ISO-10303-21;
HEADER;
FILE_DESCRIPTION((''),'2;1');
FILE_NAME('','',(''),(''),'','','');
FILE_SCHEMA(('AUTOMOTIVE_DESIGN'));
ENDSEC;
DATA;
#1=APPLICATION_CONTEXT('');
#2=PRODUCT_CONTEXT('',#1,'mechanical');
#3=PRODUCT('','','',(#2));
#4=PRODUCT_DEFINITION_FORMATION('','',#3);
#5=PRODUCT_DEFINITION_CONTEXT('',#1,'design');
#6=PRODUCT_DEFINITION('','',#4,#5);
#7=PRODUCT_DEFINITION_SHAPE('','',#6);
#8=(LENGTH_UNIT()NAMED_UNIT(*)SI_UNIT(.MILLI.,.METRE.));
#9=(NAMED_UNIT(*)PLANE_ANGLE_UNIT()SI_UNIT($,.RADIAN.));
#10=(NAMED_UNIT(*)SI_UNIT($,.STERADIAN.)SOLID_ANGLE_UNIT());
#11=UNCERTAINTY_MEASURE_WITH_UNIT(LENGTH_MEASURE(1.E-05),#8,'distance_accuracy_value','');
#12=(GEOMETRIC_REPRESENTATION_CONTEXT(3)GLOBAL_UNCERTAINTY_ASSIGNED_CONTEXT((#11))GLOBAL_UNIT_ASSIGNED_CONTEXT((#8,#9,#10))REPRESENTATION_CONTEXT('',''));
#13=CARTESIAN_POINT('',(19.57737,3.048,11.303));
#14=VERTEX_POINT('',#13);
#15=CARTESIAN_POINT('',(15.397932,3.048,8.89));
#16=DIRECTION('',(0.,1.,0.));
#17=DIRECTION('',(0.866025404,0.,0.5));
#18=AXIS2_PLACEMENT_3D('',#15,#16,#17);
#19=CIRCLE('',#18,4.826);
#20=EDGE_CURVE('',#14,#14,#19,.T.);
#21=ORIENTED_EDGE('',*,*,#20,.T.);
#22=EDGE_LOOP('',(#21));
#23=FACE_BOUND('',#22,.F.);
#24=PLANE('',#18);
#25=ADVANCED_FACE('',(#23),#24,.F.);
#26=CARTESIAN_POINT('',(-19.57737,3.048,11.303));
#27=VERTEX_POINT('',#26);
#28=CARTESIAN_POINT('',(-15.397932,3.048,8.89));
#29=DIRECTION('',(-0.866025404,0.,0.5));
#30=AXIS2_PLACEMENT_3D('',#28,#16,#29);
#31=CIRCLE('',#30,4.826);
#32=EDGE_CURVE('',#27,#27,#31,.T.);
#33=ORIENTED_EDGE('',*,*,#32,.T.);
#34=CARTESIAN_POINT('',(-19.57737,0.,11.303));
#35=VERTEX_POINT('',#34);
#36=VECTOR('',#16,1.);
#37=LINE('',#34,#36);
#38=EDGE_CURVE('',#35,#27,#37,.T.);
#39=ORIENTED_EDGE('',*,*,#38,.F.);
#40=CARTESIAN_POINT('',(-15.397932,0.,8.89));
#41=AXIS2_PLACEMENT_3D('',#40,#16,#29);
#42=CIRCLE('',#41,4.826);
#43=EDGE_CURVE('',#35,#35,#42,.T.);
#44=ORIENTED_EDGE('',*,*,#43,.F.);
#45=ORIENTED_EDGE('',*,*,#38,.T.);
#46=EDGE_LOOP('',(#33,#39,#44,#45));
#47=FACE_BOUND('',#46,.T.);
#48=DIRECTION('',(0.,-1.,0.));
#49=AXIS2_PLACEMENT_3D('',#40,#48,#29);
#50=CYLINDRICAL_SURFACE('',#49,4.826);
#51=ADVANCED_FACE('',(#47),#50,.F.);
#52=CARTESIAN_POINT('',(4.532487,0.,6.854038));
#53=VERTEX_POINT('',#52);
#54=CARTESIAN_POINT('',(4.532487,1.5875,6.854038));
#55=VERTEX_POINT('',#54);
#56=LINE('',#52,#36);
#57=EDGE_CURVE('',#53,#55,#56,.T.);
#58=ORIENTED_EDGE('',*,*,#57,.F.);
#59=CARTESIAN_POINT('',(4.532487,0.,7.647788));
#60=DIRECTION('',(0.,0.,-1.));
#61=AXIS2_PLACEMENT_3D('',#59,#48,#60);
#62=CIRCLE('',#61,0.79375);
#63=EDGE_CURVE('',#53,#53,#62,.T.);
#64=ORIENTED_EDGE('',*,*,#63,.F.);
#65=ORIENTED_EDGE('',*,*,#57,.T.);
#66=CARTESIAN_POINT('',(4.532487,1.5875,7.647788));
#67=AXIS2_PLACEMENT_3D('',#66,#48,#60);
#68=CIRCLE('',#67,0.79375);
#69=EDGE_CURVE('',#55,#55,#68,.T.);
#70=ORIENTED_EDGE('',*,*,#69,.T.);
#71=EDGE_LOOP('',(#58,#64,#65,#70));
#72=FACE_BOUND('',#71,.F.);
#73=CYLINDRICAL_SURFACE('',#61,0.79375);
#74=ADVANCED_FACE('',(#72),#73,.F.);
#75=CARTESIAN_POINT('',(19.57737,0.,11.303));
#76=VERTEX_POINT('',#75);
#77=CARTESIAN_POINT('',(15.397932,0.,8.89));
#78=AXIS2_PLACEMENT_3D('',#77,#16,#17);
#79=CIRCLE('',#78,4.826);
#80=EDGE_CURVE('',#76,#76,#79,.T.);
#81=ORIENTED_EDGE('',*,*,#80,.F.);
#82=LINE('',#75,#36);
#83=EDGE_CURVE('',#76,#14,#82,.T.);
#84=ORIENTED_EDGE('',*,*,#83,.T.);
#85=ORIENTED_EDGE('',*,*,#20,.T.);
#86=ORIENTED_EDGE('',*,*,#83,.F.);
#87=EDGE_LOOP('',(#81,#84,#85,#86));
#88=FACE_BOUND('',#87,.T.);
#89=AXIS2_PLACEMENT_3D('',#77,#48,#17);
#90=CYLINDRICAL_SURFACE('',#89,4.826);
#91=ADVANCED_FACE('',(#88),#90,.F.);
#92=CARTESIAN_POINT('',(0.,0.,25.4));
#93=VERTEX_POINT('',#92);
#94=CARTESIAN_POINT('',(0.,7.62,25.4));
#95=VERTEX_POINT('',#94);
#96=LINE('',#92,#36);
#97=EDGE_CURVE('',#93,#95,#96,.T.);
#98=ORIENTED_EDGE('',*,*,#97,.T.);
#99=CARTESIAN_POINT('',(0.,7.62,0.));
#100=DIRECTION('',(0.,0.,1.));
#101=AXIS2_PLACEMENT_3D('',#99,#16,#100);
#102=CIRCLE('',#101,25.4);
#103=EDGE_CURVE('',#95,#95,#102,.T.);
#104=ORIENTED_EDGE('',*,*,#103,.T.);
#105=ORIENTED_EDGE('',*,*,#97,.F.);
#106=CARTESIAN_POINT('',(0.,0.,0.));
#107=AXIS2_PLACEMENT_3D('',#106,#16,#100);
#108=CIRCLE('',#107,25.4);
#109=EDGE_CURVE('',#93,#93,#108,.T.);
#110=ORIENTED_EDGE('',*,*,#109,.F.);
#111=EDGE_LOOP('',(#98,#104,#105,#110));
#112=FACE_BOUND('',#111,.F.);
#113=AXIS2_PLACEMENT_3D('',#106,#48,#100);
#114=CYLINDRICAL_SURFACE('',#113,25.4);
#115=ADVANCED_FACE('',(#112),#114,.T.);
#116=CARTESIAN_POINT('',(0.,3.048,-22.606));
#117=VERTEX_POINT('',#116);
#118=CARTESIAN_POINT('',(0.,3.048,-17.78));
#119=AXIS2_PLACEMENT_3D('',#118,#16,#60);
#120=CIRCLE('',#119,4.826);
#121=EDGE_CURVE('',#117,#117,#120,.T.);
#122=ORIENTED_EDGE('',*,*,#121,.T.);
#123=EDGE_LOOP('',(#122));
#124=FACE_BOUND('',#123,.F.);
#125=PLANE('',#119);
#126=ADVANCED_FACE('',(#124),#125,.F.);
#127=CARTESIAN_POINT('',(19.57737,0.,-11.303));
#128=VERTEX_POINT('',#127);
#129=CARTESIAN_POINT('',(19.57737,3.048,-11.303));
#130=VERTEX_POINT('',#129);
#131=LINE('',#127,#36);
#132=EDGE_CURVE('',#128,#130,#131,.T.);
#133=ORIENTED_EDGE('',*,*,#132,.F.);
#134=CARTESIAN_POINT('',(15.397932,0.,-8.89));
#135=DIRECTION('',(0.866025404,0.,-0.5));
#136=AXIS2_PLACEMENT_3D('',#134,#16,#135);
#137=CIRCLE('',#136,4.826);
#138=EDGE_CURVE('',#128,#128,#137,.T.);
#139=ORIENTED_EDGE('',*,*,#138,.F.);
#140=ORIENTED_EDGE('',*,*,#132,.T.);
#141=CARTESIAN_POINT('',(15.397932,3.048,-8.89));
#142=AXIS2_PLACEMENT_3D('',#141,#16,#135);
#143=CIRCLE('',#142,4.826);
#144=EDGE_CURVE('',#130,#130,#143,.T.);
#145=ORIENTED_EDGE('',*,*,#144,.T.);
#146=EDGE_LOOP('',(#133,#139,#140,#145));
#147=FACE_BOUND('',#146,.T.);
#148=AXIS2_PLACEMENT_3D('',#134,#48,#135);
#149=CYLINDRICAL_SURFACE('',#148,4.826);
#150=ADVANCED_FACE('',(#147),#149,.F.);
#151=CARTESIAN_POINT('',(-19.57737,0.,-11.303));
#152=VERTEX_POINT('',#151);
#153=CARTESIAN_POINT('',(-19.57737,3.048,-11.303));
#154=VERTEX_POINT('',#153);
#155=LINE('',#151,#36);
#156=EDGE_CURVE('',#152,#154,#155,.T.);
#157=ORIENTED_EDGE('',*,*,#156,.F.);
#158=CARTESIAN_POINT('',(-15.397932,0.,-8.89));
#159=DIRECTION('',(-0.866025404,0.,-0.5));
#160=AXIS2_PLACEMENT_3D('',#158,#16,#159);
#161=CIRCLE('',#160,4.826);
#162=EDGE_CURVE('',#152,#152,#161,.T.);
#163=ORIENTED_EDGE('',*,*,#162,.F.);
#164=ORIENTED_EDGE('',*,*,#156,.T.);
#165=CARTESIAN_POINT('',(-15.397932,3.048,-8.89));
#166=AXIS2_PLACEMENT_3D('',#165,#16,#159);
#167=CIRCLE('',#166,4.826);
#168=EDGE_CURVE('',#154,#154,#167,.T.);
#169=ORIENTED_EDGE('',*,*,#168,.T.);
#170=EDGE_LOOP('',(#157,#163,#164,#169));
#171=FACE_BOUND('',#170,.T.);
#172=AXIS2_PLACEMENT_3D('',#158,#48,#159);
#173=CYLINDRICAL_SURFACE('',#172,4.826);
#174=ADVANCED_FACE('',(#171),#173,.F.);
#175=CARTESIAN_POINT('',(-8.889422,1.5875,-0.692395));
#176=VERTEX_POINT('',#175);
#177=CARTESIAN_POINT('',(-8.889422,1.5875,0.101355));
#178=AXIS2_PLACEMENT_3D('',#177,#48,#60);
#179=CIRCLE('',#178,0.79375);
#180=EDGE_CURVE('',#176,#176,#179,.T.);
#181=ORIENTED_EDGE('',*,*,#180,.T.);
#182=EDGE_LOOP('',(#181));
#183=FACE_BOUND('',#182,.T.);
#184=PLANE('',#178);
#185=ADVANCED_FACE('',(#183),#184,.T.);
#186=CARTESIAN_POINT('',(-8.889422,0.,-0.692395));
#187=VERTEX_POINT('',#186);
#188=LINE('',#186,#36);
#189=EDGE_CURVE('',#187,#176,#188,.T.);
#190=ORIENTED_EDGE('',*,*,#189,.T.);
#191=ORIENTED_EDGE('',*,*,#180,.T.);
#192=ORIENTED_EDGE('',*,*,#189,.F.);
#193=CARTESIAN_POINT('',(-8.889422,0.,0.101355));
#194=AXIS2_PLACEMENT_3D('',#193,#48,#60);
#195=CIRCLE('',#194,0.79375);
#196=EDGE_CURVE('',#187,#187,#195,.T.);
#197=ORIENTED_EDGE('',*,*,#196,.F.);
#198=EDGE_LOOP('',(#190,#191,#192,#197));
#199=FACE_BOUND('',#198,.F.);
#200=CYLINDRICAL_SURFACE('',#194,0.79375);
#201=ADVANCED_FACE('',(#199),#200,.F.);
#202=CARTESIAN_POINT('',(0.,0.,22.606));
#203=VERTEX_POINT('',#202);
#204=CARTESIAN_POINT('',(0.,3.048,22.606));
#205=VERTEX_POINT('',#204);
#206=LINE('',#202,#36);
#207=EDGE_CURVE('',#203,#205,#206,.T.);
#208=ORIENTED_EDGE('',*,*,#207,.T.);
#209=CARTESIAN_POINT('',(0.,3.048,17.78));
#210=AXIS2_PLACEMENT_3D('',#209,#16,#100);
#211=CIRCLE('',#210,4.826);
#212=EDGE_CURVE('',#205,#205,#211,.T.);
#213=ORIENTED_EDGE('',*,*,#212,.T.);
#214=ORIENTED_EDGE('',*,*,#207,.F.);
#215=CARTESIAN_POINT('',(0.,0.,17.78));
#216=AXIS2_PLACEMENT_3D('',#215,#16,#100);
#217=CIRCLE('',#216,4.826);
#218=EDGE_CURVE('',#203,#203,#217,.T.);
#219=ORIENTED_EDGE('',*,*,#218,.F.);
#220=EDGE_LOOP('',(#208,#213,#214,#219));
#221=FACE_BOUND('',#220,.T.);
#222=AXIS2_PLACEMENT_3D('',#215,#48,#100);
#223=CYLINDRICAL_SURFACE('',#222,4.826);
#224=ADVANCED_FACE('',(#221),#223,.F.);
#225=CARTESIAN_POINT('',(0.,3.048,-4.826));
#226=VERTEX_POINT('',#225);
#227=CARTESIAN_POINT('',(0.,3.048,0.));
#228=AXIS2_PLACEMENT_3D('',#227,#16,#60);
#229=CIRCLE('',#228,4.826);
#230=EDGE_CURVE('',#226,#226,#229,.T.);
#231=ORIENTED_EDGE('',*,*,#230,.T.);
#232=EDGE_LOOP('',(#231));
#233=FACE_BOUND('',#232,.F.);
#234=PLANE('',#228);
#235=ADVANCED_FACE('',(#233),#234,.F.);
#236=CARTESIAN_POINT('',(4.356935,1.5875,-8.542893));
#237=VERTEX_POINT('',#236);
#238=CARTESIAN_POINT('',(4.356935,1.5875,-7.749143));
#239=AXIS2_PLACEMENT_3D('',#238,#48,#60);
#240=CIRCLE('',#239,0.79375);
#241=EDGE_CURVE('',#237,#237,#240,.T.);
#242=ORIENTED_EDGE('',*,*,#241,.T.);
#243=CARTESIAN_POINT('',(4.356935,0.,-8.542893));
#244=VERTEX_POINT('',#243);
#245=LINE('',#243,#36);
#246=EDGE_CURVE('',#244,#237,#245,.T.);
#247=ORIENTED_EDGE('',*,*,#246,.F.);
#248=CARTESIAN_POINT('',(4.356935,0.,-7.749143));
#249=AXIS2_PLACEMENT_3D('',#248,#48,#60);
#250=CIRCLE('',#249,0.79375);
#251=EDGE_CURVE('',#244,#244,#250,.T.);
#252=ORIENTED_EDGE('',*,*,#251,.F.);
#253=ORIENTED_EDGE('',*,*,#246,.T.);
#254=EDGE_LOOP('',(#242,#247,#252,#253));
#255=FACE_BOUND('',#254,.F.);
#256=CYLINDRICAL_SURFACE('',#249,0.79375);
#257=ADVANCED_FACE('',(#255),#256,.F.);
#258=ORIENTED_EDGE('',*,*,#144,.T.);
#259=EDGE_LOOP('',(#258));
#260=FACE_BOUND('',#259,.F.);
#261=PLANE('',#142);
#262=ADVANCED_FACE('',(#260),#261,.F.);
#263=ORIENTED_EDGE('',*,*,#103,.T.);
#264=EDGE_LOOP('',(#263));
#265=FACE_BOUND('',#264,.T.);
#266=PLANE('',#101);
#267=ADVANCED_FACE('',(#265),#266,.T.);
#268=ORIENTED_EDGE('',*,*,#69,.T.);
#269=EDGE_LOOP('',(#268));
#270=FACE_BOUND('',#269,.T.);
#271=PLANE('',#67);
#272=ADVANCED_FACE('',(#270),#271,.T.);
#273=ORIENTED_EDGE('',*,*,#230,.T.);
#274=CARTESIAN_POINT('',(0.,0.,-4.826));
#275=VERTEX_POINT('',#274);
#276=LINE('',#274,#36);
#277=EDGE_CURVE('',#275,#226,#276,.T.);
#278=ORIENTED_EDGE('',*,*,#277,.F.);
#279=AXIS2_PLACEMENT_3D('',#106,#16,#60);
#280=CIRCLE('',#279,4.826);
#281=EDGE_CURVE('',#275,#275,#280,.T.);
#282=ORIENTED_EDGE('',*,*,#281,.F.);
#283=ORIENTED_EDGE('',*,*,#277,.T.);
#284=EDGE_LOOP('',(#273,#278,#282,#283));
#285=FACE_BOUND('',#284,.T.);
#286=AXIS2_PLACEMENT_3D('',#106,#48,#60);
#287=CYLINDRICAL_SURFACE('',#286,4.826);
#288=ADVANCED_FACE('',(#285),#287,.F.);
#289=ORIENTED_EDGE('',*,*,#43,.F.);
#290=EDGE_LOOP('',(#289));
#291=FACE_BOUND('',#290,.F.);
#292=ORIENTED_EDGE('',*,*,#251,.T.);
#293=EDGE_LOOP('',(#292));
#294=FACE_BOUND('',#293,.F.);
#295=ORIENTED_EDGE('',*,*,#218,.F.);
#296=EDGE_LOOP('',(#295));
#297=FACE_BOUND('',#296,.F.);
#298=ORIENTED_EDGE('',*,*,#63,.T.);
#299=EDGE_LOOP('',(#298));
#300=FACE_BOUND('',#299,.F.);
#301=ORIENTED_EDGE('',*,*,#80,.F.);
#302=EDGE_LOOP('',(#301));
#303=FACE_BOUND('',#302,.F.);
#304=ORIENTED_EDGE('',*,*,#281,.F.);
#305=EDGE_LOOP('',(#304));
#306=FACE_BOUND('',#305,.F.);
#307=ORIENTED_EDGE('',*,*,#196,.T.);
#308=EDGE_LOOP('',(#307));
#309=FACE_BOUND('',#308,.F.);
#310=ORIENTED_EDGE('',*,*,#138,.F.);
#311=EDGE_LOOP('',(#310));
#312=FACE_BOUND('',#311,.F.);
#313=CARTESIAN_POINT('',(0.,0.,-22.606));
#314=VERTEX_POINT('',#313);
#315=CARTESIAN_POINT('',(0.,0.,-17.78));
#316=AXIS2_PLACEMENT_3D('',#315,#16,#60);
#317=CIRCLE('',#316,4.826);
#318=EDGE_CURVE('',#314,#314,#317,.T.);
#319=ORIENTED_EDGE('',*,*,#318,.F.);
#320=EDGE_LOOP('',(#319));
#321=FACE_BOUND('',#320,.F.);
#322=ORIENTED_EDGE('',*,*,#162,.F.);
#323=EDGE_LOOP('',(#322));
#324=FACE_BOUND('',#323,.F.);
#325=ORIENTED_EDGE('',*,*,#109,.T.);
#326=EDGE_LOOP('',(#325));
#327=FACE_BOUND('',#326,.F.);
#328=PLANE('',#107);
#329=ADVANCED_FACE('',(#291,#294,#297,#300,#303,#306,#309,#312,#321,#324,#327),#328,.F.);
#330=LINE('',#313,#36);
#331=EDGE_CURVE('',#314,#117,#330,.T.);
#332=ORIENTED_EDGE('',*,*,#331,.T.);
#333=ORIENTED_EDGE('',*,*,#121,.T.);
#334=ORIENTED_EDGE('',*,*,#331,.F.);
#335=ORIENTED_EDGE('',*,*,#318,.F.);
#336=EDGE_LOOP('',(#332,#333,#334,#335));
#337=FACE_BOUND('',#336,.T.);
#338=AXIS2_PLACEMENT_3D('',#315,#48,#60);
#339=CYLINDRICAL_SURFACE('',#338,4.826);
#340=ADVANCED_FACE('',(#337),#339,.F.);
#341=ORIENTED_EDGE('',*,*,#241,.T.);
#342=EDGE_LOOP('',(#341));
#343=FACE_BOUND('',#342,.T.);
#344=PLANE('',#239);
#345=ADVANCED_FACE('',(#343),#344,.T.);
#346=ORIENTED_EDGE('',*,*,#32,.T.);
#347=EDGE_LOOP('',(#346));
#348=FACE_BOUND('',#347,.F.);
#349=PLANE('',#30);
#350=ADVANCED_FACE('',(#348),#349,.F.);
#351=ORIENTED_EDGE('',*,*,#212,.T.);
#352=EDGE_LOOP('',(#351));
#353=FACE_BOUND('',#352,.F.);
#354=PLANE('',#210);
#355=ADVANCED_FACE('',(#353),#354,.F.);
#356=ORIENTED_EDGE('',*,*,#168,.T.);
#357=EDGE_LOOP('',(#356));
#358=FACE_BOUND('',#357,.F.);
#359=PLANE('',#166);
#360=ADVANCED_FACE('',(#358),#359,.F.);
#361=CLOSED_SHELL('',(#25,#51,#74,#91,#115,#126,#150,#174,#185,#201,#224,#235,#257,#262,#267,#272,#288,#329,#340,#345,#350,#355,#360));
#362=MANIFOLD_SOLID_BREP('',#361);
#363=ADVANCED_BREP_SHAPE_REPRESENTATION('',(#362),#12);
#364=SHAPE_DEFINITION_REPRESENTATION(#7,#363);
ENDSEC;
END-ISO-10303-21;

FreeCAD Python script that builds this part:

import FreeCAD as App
import Part
import Sketcher
from FreeCAD import Vector
Q = App.Units.Quantity

doc = App.newDocument("Part")
body = doc.addObject("PartDesign::Body", "Body")

# Sketch on XZ plane
sketch1 = doc.addObject("Sketcher::SketchObject", "Sketch")
body.addObject(sketch1)
sketch1.AttachmentSupport = (doc.XZ_Plane, [""])
sketch1.MapMode = "FlatFace"
sketch1.addGeometry(Part.Circle(Vector(0, 0, 0), Vector(0, 0, 1), 25), False)
sketch1.addConstraint([
    Sketcher.Constraint("Coincident", 0, 3, -1, 1),
    Sketcher.Constraint("Diameter", 0, Q("2 in")),
])
pad1 = doc.addObject("PartDesign::Pad", "Pad")
body.addObject(pad1)
pad1.Profile = sketch1
pad1.Length = Q("0.3 in")
pad1.Reversed = True

# Sketch on XZ plane
sketch2 = doc.addObject("Sketcher::SketchObject", "Sketch001")
body.addObject(sketch2)
sketch2.AttachmentSupport = (doc.XZ_Plane, [""])
sketch2.MapMode = "FlatFace"
sketch2.addGeometry(Part.Circle(Vector(0, -17.8, 0), Vector(0, 0, 1), 4.8), False)
sketch2.addConstraint([
    Sketcher.Constraint("PointOnObject", 0, 3, -2),
    Sketcher.Constraint("Diameter", 0, Q("0.38 in")),
    Sketcher.Constraint("DistanceY", 0, 3, -1, 1, Q("0.7 in")),
])
pocket1 = doc.addObject("PartDesign::Pocket", "Pocket")
body.addObject(pocket1)
pocket1.Profile = sketch2
pocket1.Length = Q("0.12 in")
doc.recompute()

polarpattern = doc.addObject("PartDesign::PolarPattern", "PolarPattern")
body.addObject(polarpattern)
polarpattern.Originals = [pocket1]
polarpattern.Axis = (doc.Y_Axis, [""])
polarpattern.Angle = 360
polarpattern.Occurrences = 6
body.Tip = polarpattern

# Sketch on XZ plane
sketch3 = doc.addObject("Sketcher::SketchObject", "Sketch002")
body.addObject(sketch3)
sketch3.AttachmentSupport = (doc.XZ_Plane, [""])
sketch3.MapMode = "FlatFace"
sketch3.addGeometry(Part.Circle(Vector(0, 0, 0), Vector(0, 0, 1), 4.8), False)
sketch3.addConstraint([
    Sketcher.Constraint("Coincident", 0, 3, -1, 1),
    Sketcher.Constraint("Diameter", 0, Q("0.38 in")),
])
pocket2 = doc.addObject("PartDesign::Pocket", "Pocket001")
body.addObject(pocket2)
pocket2.Profile = sketch3
pocket2.Length = Q("0.12 in")

# Sketch on XZ plane
sketch4 = doc.addObject("Sketcher::SketchObject", "Sketch003")
body.addObject(sketch4)
sketch4.AttachmentSupport = (doc.XZ_Plane, [""])
sketch4.MapMode = "FlatFace"
sketch4.addGeometry([
    Part.Circle(Vector(4.5, 7.6, 0), Vector(0, 0, 1), 0.8),
    Part.Circle(Vector(4.4, -7.7, 0), Vector(0, 0, 1), 0.8),
    Part.Circle(Vector(-8.9, 0.1, 0), Vector(0, 0, 1), 0.8),
], False)
sketch4.addConstraint([
    Sketcher.Constraint("Equal", 0, 1),
    Sketcher.Constraint("Equal", 1, 2),
    Sketcher.Constraint("Diameter", 0, Q("0.0625 in")),
    Sketcher.Constraint("DistanceY", -1, 1, 0, 3, Q("7.647788 mm")),
    Sketcher.Constraint("DistanceX", 1, 3, 0, 3, Q("0.175551 mm")),
    Sketcher.Constraint("DistanceY", 1, 3, 0, 3, Q("15.396931 mm")),
    Sketcher.Constraint("DistanceX", 2, 3, 0, 3, Q("13.421909 mm")),
    Sketcher.Constraint("DistanceX", -1, 1, 0, 3, Q("4.532487 mm")),
    Sketcher.Constraint("DistanceY", -1, 1, 2, 3, Q("0.101355 mm")),
])
pocket3 = doc.addObject("PartDesign::Pocket", "Pocket002")
body.addObject(pocket3)
pocket3.Profile = sketch4
pocket3.Length = Q("0.0625 in")

doc.recompute()
